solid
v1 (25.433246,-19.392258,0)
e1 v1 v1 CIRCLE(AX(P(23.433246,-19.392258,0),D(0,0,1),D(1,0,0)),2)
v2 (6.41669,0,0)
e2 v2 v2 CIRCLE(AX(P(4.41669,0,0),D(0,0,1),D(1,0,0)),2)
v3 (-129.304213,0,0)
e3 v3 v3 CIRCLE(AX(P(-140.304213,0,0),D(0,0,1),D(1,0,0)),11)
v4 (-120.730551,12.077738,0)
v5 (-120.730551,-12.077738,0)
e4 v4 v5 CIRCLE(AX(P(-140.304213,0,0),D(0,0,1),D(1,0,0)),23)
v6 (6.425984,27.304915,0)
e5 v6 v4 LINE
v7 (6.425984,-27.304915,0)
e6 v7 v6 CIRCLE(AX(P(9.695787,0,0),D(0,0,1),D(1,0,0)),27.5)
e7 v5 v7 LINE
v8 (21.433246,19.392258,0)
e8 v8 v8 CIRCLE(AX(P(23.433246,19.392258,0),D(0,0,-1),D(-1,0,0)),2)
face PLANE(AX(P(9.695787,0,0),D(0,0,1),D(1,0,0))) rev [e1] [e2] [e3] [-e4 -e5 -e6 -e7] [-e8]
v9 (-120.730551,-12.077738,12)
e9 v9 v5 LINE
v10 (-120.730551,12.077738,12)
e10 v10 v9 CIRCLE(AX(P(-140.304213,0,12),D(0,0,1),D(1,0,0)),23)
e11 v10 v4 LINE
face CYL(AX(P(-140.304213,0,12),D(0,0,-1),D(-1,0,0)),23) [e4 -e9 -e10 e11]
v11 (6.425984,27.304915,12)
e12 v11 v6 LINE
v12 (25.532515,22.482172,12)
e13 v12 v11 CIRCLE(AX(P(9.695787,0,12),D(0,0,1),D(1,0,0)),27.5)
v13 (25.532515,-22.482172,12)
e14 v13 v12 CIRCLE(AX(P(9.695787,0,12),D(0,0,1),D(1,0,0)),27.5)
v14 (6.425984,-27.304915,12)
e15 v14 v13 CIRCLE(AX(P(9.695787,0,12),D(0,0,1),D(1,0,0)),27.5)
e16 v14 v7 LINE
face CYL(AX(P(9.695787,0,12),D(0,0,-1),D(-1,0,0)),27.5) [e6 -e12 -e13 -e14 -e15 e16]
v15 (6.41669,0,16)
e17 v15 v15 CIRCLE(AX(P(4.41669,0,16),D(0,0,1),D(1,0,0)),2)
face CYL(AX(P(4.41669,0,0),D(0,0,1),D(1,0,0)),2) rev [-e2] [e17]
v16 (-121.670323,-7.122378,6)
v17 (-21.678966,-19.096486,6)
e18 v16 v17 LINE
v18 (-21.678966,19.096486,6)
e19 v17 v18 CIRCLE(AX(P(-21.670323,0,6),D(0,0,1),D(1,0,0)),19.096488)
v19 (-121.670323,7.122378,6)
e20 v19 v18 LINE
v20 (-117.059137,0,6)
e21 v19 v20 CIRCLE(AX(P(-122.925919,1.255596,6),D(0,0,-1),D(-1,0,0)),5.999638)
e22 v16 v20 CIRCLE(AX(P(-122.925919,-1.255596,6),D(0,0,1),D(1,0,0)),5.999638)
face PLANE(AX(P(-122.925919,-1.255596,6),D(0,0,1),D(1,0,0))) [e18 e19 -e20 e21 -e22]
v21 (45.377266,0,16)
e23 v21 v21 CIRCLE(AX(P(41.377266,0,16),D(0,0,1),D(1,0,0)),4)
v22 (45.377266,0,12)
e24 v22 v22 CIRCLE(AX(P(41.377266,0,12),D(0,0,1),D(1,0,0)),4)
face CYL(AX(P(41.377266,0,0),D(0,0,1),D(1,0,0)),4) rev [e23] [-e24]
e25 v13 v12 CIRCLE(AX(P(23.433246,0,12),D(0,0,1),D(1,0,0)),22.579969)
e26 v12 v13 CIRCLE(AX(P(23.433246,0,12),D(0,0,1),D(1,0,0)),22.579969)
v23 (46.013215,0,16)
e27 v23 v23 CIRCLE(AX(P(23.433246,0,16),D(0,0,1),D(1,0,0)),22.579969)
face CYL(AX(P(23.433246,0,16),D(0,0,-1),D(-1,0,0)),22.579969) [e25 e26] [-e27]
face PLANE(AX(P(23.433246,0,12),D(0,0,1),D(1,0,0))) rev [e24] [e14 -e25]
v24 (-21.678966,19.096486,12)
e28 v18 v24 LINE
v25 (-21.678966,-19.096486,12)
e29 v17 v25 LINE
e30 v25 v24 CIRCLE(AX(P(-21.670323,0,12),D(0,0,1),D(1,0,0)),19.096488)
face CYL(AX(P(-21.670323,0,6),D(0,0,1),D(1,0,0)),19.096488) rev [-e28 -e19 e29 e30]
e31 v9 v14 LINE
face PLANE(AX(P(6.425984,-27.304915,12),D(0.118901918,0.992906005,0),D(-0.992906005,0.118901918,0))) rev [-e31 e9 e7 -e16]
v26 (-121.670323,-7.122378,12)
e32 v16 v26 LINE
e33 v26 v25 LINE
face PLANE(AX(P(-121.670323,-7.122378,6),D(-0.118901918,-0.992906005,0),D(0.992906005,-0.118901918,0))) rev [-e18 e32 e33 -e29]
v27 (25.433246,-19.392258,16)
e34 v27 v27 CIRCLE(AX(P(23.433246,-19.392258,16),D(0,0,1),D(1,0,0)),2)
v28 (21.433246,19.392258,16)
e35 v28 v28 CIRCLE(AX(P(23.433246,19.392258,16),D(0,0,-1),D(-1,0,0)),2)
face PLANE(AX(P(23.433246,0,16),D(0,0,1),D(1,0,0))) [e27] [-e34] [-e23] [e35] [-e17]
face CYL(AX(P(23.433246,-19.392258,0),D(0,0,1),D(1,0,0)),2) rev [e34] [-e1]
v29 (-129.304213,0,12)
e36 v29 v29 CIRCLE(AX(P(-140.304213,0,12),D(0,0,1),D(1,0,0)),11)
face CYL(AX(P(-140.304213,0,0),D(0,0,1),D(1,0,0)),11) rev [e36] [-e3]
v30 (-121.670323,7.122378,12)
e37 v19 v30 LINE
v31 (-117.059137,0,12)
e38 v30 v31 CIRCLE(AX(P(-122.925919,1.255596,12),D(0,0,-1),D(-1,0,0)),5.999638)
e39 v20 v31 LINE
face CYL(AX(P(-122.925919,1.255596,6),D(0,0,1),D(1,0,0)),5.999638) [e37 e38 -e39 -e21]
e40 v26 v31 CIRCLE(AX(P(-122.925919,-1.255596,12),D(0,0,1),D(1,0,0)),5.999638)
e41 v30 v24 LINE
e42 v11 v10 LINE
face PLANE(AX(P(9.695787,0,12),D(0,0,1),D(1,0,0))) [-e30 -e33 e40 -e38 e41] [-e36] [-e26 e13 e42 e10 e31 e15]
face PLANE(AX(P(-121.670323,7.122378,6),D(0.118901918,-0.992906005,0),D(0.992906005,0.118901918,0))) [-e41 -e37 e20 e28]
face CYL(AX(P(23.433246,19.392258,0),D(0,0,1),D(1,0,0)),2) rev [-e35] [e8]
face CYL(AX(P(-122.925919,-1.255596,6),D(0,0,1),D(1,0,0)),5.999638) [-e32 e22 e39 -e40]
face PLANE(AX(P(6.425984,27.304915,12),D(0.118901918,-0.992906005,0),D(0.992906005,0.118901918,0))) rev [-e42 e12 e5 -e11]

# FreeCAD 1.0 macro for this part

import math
import FreeCAD as App
import Part
import Sketcher

V = App.Vector

doc = App.newDocument("Part")
body = doc.addObject("PartDesign::Body", "Body")

# Sketch on XY plane
sketch1 = body.newObject("Sketcher::SketchObject", "Sketch")
sketch1.AttachmentSupport = (doc.getObject("XY_Plane"), [""])
sketch1.MapMode = "FlatFace"
sketch1.addGeometry([
    Part.LineSegment(V(6, 27, 0), V(-121, 12, 0)),
    Part.ArcOfCircle(Part.Circle(V(-140, 0, 0), V(0, 0, 1), 23), math.radians(32), math.radians(328)),
    Part.LineSegment(V(-121, -12, 0), V(6, -27, 0)),
    Part.ArcOfCircle(Part.Circle(V(10, 0, 0), V(0, 0, 1), 28), math.radians(-97), math.radians(97)),
], False)
sketch1.addConstraint([
    Sketcher.Constraint("Coincident", 0, 2, 1, 1),
    Sketcher.Constraint("Coincident", 1, 2, 2, 1),
    Sketcher.Constraint("Tangent", 2, 2, 3, 1),
    Sketcher.Constraint("Tangent", 3, 2, 0, 1),
    Sketcher.Constraint("Symmetric", 0, 2, 1, 2, -1),
    Sketcher.Constraint("PointOnObject", 3, 3, -1),
    Sketcher.Constraint("Radius", 1, 23.0),
    Sketcher.Constraint("Radius", 3, 27.5),
    Sketcher.Constraint("DistanceX", 1, 3, 3, 3, 150.0),
    Sketcher.Constraint("DistanceX", 0, 2, -1, 1, 120.730551),
    Sketcher.Constraint("DistanceY", 2, 2, 3, 2, 54.60983),
])
pad1 = body.newObject("PartDesign::Pad", "Pad")
pad1.Profile = sketch1
pad1.Length = 12

# Sketch on XY plane
sketch2 = body.newObject("Sketcher::SketchObject", "Sketch001")
sketch2.AttachmentSupport = (doc.getObject("XY_Plane"), [""])
sketch2.MapMode = "FlatFace"
sketch2.AttachmentOffset = App.Placement(V(0, 0, 12), App.Rotation())
sketch2.addGeometry([
    Part.LineSegment(V(-22, 19, 0), V(-122, 7, 0)),  # 0
    Part.ArcOfCircle(Part.Circle(V(-123, 1, 0), V(0, 0, 1), 6), math.radians(-12), math.radians(78)),  # 1
    Part.ArcOfCircle(Part.Circle(V(-123, -1, 0), V(0, 0, 1), 6), math.radians(-78), math.radians(12)),  # 2
    Part.LineSegment(V(-122, -7, 0), V(-22, -19, 0)),  # 3
    Part.ArcOfCircle(Part.Circle(V(-22, 0, 0), V(0, 0, 1), 19), math.radians(-90), math.radians(90)),  # 4
], False)
sketch2.addConstraint([
    Sketcher.Constraint("Coincident", 0, 2, 1, 2),
    Sketcher.Constraint("Coincident", 1, 1, 2, 2),
    Sketcher.Constraint("Coincident", 2, 1, 3, 1),
    Sketcher.Constraint("Coincident", 3, 2, 4, 1),
    Sketcher.Constraint("Coincident", 4, 2, 0, 1),
    Sketcher.Constraint("Equal", 1, 2),
    Sketcher.Constraint("Symmetric", 1, 3, 2, 3, -1),
    Sketcher.Constraint("Symmetric", 3, 2, 4, 2, -1),
    Sketcher.Constraint("Vertical", 0, 2, 2, 1),
    Sketcher.Constraint("DistanceX", 0, 2, 4, 3, 100.0),
    Sketcher.Constraint("Radius", 4, 19.096488),
    Sketcher.Constraint("Radius", 1, 5.999638),
    Sketcher.Constraint("DistanceX", 1, 3, -1, 1, 122.925919),
    Sketcher.Constraint("DistanceY", 1, 3, 0, 2, 5.866782),
    Sketcher.Constraint("DistanceX", 2, 3, 1, 1, 5.866782),
    Sketcher.Constraint("DistanceX", 1, 1, 3, 2, 95.380171),
])
pocket1 = body.newObject("PartDesign::Pocket", "Pocket")
pocket1.Profile = sketch2
pocket1.Length = 6

# Sketch on XY plane
sketch3 = body.newObject("Sketcher::SketchObject", "Sketch002")
sketch3.AttachmentSupport = (doc.getObject("XY_Plane"), [""])
sketch3.MapMode = "FlatFace"
sketch3.AttachmentOffset = App.Placement(V(0, 0, 12), App.Rotation())
sketch3.addGeometry(Part.Circle(V(-140, 0, 0), V(0, 0, 1), 11), False)
sketch3.addConstraint([
    Sketcher.Constraint("PointOnObject", 0, 3, -1),
    Sketcher.Constraint("Diameter", 0, 22.0),
    Sketcher.Constraint("DistanceX", 0, 3, -1, 1, 140.304213),
])
pocket2 = body.newObject("PartDesign::Pocket", "Pocket001")
pocket2.Profile = sketch3
pocket2.Length = 12

# Sketch on XY plane
sketch4 = body.newObject("Sketcher::SketchObject", "Sketch003")
sketch4.AttachmentSupport = (doc.getObject("XY_Plane"), [""])
sketch4.MapMode = "FlatFace"
sketch4.AttachmentOffset = App.Placement(V(0, 0, 12), App.Rotation())
sketch4.addGeometry(Part.Circle(V(23, 0, 0), V(0, 0, 1), 23), False)
sketch4.addConstraint([
    Sketcher.Constraint("PointOnObject", 0, 3, -1),
    Sketcher.Constraint("Diameter", 0, 45.159937),
    Sketcher.Constraint("DistanceX", -1, 1, 0, 3, 23.433246),
])
pad2 = body.newObject("PartDesign::Pad", "Pad001")
pad2.Profile = sketch4
pad2.Length = 4

# Sketch on XY plane
sketch5 = body.newObject("Sketcher::SketchObject", "Sketch004")
sketch5.AttachmentSupport = (doc.getObject("XY_Plane"), [""])
sketch5.MapMode = "FlatFace"
sketch5.AttachmentOffset = App.Placement(V(0, 0, 16), App.Rotation())
sketch5.addGeometry(Part.Circle(V(4.4, 0, 0), V(0, 0, 1), 2), False)
sketch5.addConstraint([
    Sketcher.Constraint("PointOnObject", 0, 3, -1),
    Sketcher.Constraint("Diameter", 0, 4.0),
    Sketcher.Constraint("DistanceX", -1, 1, 0, 3, 4.41669),
])
pocket3 = body.newObject("PartDesign::Pocket", "Pocket002")
pocket3.Profile = sketch5
pocket3.Length = 16

# Sketch on XY plane
sketch6 = body.newObject("Sketcher::SketchObject", "Sketch005")
sketch6.AttachmentSupport = (doc.getObject("XY_Plane"), [""])
sketch6.MapMode = "FlatFace"
sketch6.AttachmentOffset = App.Placement(V(0, 0, 16), App.Rotation())
sketch6.addGeometry([
    Part.Circle(V(23.4, -19.4, 0), V(0, 0, 1), 2),
    Part.Circle(V(42.4, 0, 0), V(0, 0, 1), 2),
    Part.Circle(V(23.4, 19.4, 0), V(0, 0, 1), 2),
], False)
sketch6.addConstraint([
    Sketcher.Constraint("Equal", 0, 1),
    Sketcher.Constraint("Equal", 1, 2),
    Sketcher.Constraint("Symmetric", 0, 3, 2, 3, -1),
    Sketcher.Constraint("PointOnObject", 1, 3, -1),
    Sketcher.Constraint("Diameter", 0, 4.0),
    Sketcher.Constraint("DistanceX", -1, 1, 0, 3, 23.433246),
    Sketcher.Constraint("DistanceY", 0, 3, -1, 1, 19.392258),
    Sketcher.Constraint("DistanceX", -1, 1, 1, 3, 42.449803),
])
pocket4 = body.newObject("PartDesign::Pocket", "Pocket003")
pocket4.Profile = sketch6
pocket4.Length = 16

# Sketch on XY plane
sketch7 = body.newObject("Sketcher::SketchObject", "Sketch006")
sketch7.AttachmentSupport = (doc.getObject("XY_Plane"), [""])
sketch7.MapMode = "FlatFace"
sketch7.AttachmentOffset = App.Placement(V(0, 0, 16), App.Rotation())
sketch7.addGeometry(Part.Circle(V(41.4, 0, 0), V(0, 0, 1), 4), False)
sketch7.addConstraint([
    Sketcher.Constraint("PointOnObject", 0, 3, -1),
    Sketcher.Constraint("Diameter", 0, 8.0),
    Sketcher.Constraint("DistanceX", -1, 1, 0, 3, 41.377266),
])
pocket5 = body.newObject("PartDesign::Pocket", "Pocket004")
pocket5.Profile = sketch7
pocket5.Type = "ThroughAll"
pocket5.Midplane = True

doc.recompute()
